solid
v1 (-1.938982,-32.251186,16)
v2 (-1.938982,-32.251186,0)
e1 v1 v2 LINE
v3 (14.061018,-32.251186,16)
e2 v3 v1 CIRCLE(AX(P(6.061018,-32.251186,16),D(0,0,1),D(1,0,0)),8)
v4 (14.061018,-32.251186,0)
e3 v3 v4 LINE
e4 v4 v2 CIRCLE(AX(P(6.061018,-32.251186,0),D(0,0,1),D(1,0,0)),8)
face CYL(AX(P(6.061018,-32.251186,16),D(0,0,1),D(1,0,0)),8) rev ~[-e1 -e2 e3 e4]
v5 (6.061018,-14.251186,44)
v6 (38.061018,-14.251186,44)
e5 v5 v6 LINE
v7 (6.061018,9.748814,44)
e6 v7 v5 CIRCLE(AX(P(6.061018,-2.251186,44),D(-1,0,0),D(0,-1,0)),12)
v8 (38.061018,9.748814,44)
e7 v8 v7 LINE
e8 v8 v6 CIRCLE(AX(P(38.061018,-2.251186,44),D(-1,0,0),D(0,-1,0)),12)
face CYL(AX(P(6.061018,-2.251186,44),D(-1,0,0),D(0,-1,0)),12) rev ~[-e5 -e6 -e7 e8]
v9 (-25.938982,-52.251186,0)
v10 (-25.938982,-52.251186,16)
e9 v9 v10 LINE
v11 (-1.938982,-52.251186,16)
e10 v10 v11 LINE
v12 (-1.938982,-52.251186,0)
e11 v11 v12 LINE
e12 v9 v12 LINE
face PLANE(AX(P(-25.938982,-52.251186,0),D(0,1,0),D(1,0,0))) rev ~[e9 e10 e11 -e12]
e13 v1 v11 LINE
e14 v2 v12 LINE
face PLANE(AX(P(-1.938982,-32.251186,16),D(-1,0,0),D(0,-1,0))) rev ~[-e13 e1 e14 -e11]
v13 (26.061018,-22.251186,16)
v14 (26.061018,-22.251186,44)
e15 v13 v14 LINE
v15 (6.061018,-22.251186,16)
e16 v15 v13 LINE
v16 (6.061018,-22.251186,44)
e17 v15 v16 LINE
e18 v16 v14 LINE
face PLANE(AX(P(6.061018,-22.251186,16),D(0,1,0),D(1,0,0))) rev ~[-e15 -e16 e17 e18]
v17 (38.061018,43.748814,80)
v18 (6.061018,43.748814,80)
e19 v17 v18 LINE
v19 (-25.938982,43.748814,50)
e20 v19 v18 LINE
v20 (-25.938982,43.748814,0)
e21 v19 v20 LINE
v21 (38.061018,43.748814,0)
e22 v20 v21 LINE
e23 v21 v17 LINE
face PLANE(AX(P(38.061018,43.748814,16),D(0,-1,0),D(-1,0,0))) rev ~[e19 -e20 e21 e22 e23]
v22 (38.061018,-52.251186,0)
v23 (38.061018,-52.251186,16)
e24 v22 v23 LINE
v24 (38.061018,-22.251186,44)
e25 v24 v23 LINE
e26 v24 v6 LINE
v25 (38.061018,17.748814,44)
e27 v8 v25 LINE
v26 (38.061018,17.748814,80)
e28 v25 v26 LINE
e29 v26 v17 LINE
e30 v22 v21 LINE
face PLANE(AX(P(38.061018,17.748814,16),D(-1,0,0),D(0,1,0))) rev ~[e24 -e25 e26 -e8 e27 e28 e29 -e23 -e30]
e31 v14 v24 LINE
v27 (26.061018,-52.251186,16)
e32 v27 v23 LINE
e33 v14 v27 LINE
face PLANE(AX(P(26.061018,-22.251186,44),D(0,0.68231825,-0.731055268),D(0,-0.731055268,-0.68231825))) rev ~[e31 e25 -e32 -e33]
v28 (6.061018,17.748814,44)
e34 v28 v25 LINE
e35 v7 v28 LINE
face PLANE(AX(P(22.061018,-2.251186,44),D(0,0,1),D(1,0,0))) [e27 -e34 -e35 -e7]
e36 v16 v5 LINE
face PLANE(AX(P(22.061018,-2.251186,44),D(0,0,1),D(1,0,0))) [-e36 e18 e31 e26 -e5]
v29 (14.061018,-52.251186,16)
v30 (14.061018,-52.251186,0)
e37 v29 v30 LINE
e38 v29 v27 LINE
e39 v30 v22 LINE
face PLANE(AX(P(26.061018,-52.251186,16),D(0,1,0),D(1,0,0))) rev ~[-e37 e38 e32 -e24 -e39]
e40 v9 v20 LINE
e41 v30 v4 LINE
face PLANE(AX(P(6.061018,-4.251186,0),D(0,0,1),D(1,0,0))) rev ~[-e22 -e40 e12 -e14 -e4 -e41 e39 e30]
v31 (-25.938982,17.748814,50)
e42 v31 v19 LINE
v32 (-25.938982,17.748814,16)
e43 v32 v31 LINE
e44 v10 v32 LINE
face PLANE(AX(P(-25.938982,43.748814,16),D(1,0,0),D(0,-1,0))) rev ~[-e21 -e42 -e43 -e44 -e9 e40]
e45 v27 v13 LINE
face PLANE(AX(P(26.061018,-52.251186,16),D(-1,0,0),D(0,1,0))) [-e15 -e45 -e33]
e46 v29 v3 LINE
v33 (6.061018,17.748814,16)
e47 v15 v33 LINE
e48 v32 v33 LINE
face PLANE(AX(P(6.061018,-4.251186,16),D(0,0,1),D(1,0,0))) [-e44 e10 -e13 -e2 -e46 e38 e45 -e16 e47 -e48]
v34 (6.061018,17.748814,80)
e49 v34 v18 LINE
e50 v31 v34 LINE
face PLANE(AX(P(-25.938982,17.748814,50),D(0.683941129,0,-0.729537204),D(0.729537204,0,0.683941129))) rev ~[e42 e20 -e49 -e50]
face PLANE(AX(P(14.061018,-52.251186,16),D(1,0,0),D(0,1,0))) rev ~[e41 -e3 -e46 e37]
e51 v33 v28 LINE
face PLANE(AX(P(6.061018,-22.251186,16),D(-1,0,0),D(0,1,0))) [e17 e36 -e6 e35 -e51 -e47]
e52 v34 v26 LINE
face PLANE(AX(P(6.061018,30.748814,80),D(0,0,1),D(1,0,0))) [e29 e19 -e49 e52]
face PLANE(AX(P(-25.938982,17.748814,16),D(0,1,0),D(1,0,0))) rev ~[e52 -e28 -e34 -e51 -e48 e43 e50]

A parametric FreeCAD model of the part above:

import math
import FreeCAD as App
import Part
import Sketcher

V = App.Vector
Q = App.Units.Quantity

doc = App.newDocument("Part")
body = doc.addObject("PartDesign::Body", "Body")

# Sketch on XY plane
sketch1 = body.newObject("Sketcher::SketchObject", "Sketch")
sketch1.AttachmentSupport = (doc.getObject("XY_Plane"), [""])
sketch1.MapMode = "FlatFace"
sketch1.addGeometry([
    Part.LineSegment(V(-26, 44, 0), V(-26, -52, 0)),
    Part.LineSegment(V(-26, -52, 0), V(38, -52, 0)),
    Part.LineSegment(V(38, -52, 0), V(38, 44, 0)),
    Part.LineSegment(V(38, 44, 0), V(-26, 44, 0)),
], False)
sketch1.addConstraint([
    Sketcher.Constraint("Coincident", 0, 2, 1, 1),
    Sketcher.Constraint("Coincident", 1, 2, 2, 1),
    Sketcher.Constraint("Coincident", 2, 2, 3, 1),
    Sketcher.Constraint("Coincident", 3, 2, 0, 1),
    Sketcher.Constraint("Vertical", 0),
    Sketcher.Constraint("Horizontal", 1),
    Sketcher.Constraint("Vertical", 2),
    Sketcher.Constraint("Horizontal", 3),
    Sketcher.Constraint("DistanceX", 1, 1, 1, 2, Q("64 mm")),
    Sketcher.Constraint("DistanceY", 0, 2, 0, 1, Q("96 mm")),
    Sketcher.Constraint("DistanceX", 0, 2, -1, 1, Q("25.938982 mm")),
    Sketcher.Constraint("DistanceY", 0, 2, -1, 1, Q("52.251186 mm")),
])
pad1 = body.newObject("PartDesign::Pad", "Pad")
pad1.Profile = sketch1
pad1.Length = 16

# Sketch on XY plane
sketch2 = body.newObject("Sketcher::SketchObject", "Sketch001")
sketch2.AttachmentSupport = (doc.getObject("XY_Plane"), [""])
sketch2.MapMode = "FlatFace"
sketch2.AttachmentOffset = App.Placement(V(0, 0, 16), App.Rotation())
sketch2.addGeometry([
    Part.LineSegment(V(-2, -32, 0), V(-2, -52, 0)),
    Part.LineSegment(V(-2, -52, 0), V(14, -52, 0)),
    Part.LineSegment(V(14, -52, 0), V(14, -32, 0)),
    Part.ArcOfCircle(Part.Circle(V(6, -32, 0), V(0, 0, 1), 8), math.radians(0), math.radians(180)),
], False)
sketch2.addConstraint([
    Sketcher.Constraint("Coincident", 0, 2, 1, 1),
    Sketcher.Constraint("Coincident", 1, 2, 2, 1),
    Sketcher.Constraint("Tangent", 2, 2, 3, 1),
    Sketcher.Constraint("Tangent", 3, 2, 0, 1),
    Sketcher.Constraint("Vertical", 0),
    Sketcher.Constraint("Horizontal", 1),
    Sketcher.Constraint("Vertical", 2),
    Sketcher.Constraint("Radius", 3, Q("8 mm")),
    Sketcher.Constraint("DistanceY", 0, 2, 0, 1, Q("20 mm")),
    Sketcher.Constraint("DistanceX", -1, 1, 3, 3, Q("6.061018 mm")),
    Sketcher.Constraint("DistanceY", 3, 3, -1, 1, Q("32.251186 mm")),
])
pocket1 = body.newObject("PartDesign::Pocket", "Pocket")
pocket1.Profile = sketch2
pocket1.Length = 25

# Sketch on XY plane
sketch3 = body.newObject("Sketcher::SketchObject", "Sketch002")
sketch3.AttachmentSupport = (doc.getObject("XY_Plane"), [""])
sketch3.MapMode = "FlatFace"
sketch3.AttachmentOffset = App.Placement(V(0, 0, 16), App.Rotation())
sketch3.addGeometry([
    Part.LineSegment(V(26, -22, 0), V(26, -52, 0)),
    Part.LineSegment(V(26, -52, 0), V(38, -52, 0)),
    Part.LineSegment(V(38, -52, 0), V(38, -22, 0)),
    Part.LineSegment(V(38, -22, 0), V(26, -22, 0)),
], False)
sketch3.addConstraint([
    Sketcher.Constraint("Coincident", 0, 2, 1, 1),
    Sketcher.Constraint("Coincident", 1, 2, 2, 1),
    Sketcher.Constraint("Coincident", 2, 2, 3, 1),
    Sketcher.Constraint("Coincident", 3, 2, 0, 1),
    Sketcher.Constraint("Vertical", 0),
    Sketcher.Constraint("Horizontal", 1),
    Sketcher.Constraint("Vertical", 2),
    Sketcher.Constraint("Horizontal", 3),
    Sketcher.Constraint("DistanceX", 1, 1, 1, 2, Q("12 mm")),
    Sketcher.Constraint("DistanceY", 0, 2, 0, 1, Q("30 mm")),
    Sketcher.Constraint("DistanceX", -1, 1, 0, 2, Q("26.061018 mm")),
    Sketcher.Constraint("DistanceY", 0, 2, -1, 1, Q("52.251186 mm")),
])
pad2 = body.newObject("PartDesign::Pad", "Pad001")
pad2.Profile = sketch3
pad2.Length = 28

# Sketch on YZ plane
sketch4 = body.newObject("Sketcher::SketchObject", "Sketch003")
sketch4.AttachmentSupport = (doc.getObject("YZ_Plane"), [""])
sketch4.MapMode = "FlatFace"
sketch4.AttachmentOffset = App.Placement(V(0, 0, 26.061018), App.Rotation())
sketch4.addGeometry([
    Part.LineSegment(V(-52, 44, 0), V(-22, 44, 0)),
    Part.LineSegment(V(-22, 44, 0), V(-52, 16, 0)),
    Part.LineSegment(V(-52, 16, 0), V(-52, 44, 0)),
], False)
sketch4.addConstraint([
    Sketcher.Constraint("Coincident", 0, 2, 1, 1),
    Sketcher.Constraint("Coincident", 1, 2, 2, 1),
    Sketcher.Constraint("Coincident", 2, 2, 0, 1),
    Sketcher.Constraint("Horizontal", 0),
    Sketcher.Constraint("Vertical", 2),
    Sketcher.Constraint("DistanceX", 0, 1, 0, 2, Q("30 mm")),
    Sketcher.Constraint("DistanceY", 2, 1, 2, 2, Q("28 mm")),
    Sketcher.Constraint("DistanceY", -1, 1, 0, 2, Q("44 mm")),
    Sketcher.Constraint("DistanceX", 0, 2, -1, 1, Q("22.251186 mm")),
])
pocket2 = body.newObject("PartDesign::Pocket", "Pocket001")
pocket2.Profile = sketch4
pocket2.Length = 25
pocket2.Reversed = True

# Sketch on XY plane
sketch5 = body.newObject("Sketcher::SketchObject", "Sketch004")
sketch5.AttachmentSupport = (doc.getObject("XY_Plane"), [""])
sketch5.MapMode = "FlatFace"
sketch5.AttachmentOffset = App.Placement(V(0, 0, 16), App.Rotation())
sketch5.addGeometry([
    Part.LineSegment(V(6, 18, 0), V(6, -22, 0)),
    Part.LineSegment(V(6, -22, 0), V(38, -22, 0)),
    Part.LineSegment(V(38, -22, 0), V(38, 18, 0)),
    Part.LineSegment(V(38, 18, 0), V(6, 18, 0)),
], False)
sketch5.addConstraint([
    Sketcher.Constraint("Coincident", 0, 2, 1, 1),
    Sketcher.Constraint("Coincident", 1, 2, 2, 1),
    Sketcher.Constraint("Coincident", 2, 2, 3, 1),
    Sketcher.Constraint("Coincident", 3, 2, 0, 1),
    Sketcher.Constraint("Vertical", 0),
    Sketcher.Constraint("Horizontal", 1),
    Sketcher.Constraint("Vertical", 2),
    Sketcher.Constraint("Horizontal", 3),
    Sketcher.Constraint("DistanceX", 1, 1, 1, 2, Q("32 mm")),
    Sketcher.Constraint("DistanceY", 0, 2, 0, 1, Q("40 mm")),
    Sketcher.Constraint("DistanceX", -1, 1, 0, 2, Q("6.061018 mm")),
    Sketcher.Constraint("DistanceY", 0, 2, -1, 1, Q("22.251186 mm")),
])
pad3 = body.newObject("PartDesign::Pad", "Pad002")
pad3.Profile = sketch5
pad3.Length = 28

# Sketch on YZ plane
sketch6 = body.newObject("Sketcher::SketchObject", "Sketch005")
sketch6.AttachmentSupport = (doc.getObject("YZ_Plane"), [""])
sketch6.MapMode = "FlatFace"
sketch6.AttachmentOffset = App.Placement(V(0, 0, 6.061018), App.Rotation())
sketch6.addGeometry(Part.Circle(V(-2, 44, 0), V(0, 0, 1), 12), False)
sketch6.addConstraint([
    Sketcher.Constraint("Diameter", 0, Q("24 mm")),
    Sketcher.Constraint("DistanceY", -1, 1, 0, 3, Q("44 mm")),
    Sketcher.Constraint("DistanceX", 0, 3, -1, 1, Q("2.251186 mm")),
])
pocket3 = body.newObject("PartDesign::Pocket", "Pocket002")
pocket3.Profile = sketch6
pocket3.Length = 52
pocket3.Reversed = True

# Sketch on XY plane
sketch7 = body.newObject("Sketcher::SketchObject", "Sketch006")
sketch7.AttachmentSupport = (doc.getObject("XY_Plane"), [""])
sketch7.MapMode = "FlatFace"
sketch7.AttachmentOffset = App.Placement(V(0, 0, 16), App.Rotation())
sketch7.addGeometry([
    Part.LineSegment(V(-26, 18, 0), V(38, 18, 0)),
    Part.LineSegment(V(38, 18, 0), V(38, 44, 0)),
    Part.LineSegment(V(38, 44, 0), V(-26, 44, 0)),
    Part.LineSegment(V(-26, 44, 0), V(-26, 18, 0)),
], False)
sketch7.addConstraint([
    Sketcher.Constraint("Coincident", 0, 2, 1, 1),
    Sketcher.Constraint("Coincident", 1, 2, 2, 1),
    Sketcher.Constraint("Coincident", 2, 2, 3, 1),
    Sketcher.Constraint("Coincident", 3, 2, 0, 1),
    Sketcher.Constraint("Horizontal", 0),
    Sketcher.Constraint("Vertical", 1),
    Sketcher.Constraint("Horizontal", 2),
    Sketcher.Constraint("Vertical", 3),
    Sketcher.Constraint("DistanceX", 0, 1, 0, 2, Q("64 mm")),
    Sketcher.Constraint("DistanceY", 1, 1, 1, 2, Q("26 mm")),
    Sketcher.Constraint("DistanceX", -1, 1, 0, 2, Q("38.061018 mm")),
    Sketcher.Constraint("DistanceY", -1, 1, 0, 2, Q("17.748814 mm")),
])
pad4 = body.newObject("PartDesign::Pad", "Pad003")
pad4.Profile = sketch7
pad4.Length = 64

# Sketch on XZ plane
sketch8 = body.newObject("Sketcher::SketchObject", "Sketch007")
sketch8.AttachmentSupport = (doc.getObject("XZ_Plane"), [""])
sketch8.MapMode = "FlatFace"
sketch8.AttachmentOffset = App.Placement(V(0, 0, -17.748814), App.Rotation())
sketch8.addGeometry([
    Part.LineSegment(V(-26, 50, 0), V(6, 80, 0)),
    Part.LineSegment(V(6, 80, 0), V(-26, 80, 0)),
    Part.LineSegment(V(-26, 80, 0), V(-26, 50, 0)),
], False)
sketch8.addConstraint([
    Sketcher.Constraint("Coincident", 0, 2, 1, 1),
    Sketcher.Constraint("Coincident", 1, 2, 2, 1),
    Sketcher.Constraint("Coincident", 2, 2, 0, 1),
    Sketcher.Constraint("Horizontal", 1),
    Sketcher.Constraint("Vertical", 2),
    Sketcher.Constraint("DistanceX", 1, 2, 1, 1, Q("32 mm")),
    Sketcher.Constraint("DistanceY", 2, 2, 2, 1, Q("30 mm")),
    Sketcher.Constraint("DistanceY", -1, 1, 0, 2, Q("80 mm")),
    Sketcher.Constraint("DistanceX", -1, 1, 0, 2, Q("6.061018 mm")),
])
pocket4 = body.newObject("PartDesign::Pocket", "Pocket003")
pocket4.Profile = sketch8
pocket4.Length = 30

doc.recompute()
